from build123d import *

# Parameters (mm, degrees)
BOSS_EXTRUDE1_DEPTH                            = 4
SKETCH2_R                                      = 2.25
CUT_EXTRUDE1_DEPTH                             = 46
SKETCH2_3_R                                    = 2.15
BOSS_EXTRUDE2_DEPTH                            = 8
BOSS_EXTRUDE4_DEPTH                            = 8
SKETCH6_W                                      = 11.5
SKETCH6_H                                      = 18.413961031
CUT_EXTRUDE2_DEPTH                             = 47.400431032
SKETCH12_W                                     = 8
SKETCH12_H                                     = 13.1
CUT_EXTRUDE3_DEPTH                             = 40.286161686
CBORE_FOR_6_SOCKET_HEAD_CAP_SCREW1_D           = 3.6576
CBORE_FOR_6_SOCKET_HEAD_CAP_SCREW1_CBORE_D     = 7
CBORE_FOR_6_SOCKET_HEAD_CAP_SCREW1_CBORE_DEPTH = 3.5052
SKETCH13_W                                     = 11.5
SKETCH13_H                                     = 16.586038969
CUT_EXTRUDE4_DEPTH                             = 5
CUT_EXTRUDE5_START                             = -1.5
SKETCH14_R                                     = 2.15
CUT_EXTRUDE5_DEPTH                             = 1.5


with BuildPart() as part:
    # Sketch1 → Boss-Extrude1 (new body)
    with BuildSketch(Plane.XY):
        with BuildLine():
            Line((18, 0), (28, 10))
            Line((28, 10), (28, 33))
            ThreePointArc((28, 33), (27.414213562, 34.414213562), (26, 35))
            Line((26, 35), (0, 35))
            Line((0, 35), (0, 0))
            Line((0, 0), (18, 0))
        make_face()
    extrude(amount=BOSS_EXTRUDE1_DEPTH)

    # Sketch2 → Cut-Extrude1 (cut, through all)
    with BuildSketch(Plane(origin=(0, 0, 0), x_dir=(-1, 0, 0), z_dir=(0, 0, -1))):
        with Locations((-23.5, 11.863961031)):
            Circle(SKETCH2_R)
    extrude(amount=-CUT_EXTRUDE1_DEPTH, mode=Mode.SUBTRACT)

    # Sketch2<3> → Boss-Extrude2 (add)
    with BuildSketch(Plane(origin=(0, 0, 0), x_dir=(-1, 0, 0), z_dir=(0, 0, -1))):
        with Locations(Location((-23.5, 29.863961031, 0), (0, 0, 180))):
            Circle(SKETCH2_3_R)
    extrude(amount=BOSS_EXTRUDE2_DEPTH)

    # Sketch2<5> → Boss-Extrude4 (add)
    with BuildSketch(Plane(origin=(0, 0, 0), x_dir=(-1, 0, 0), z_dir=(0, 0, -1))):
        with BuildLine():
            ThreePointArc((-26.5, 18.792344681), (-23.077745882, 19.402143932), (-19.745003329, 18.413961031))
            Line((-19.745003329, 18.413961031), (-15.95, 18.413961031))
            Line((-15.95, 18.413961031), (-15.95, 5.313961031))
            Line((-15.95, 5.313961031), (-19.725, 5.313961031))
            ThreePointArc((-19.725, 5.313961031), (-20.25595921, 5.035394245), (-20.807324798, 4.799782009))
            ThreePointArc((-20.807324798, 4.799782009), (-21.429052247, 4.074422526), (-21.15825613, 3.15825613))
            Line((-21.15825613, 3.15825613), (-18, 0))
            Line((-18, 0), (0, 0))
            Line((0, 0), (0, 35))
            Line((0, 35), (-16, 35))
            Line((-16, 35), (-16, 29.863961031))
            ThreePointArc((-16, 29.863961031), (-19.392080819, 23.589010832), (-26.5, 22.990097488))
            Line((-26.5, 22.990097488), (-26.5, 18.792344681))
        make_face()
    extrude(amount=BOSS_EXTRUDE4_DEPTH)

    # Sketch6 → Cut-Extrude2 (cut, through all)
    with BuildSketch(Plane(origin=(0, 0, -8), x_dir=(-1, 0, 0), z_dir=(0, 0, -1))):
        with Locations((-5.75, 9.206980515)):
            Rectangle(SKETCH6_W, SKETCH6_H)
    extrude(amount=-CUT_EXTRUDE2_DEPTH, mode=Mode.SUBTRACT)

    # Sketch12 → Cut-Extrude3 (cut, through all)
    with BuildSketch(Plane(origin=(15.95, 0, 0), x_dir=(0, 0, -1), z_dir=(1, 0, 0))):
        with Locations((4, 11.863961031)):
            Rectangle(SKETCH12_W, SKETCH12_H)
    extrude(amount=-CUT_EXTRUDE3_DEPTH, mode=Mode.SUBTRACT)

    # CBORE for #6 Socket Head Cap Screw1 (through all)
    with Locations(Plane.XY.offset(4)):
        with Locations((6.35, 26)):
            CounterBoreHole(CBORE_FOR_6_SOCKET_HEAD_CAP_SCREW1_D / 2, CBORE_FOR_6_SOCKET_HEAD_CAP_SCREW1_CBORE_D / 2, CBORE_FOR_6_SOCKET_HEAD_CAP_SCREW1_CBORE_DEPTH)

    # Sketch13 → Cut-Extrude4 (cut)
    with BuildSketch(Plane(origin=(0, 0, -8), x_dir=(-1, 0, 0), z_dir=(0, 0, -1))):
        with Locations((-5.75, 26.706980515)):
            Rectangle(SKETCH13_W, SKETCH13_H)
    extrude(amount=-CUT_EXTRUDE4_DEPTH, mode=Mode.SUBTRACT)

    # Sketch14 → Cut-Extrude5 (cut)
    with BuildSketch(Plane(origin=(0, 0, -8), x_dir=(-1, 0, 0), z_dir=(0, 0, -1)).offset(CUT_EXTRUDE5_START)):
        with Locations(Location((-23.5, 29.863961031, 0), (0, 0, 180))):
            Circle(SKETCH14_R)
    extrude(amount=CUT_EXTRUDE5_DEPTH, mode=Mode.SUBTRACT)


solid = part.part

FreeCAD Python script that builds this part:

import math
import FreeCAD as App
import Part
import Sketcher
from FreeCAD import Vector
Q = App.Units.Quantity

doc = App.newDocument("Part")
body = doc.addObject("PartDesign::Body", "Body")

sketch1 = doc.addObject("Sketcher::SketchObject", "Sketch")
body.addObject(sketch1)
sketch1.AttachmentSupport = (doc.XY_Plane, [""])
sketch1.MapMode = "FlatFace"
sketch1.addGeometry([
    Part.LineSegment(Vector(18, 0, 0), Vector(28, 10, 0)),
    Part.LineSegment(Vector(28, 10, 0), Vector(28, 33, 0)),
    Part.ArcOfCircle(Part.Circle(Vector(26, 33, 0), Vector(0, 0, 1), 2), math.radians(0), math.radians(90)),
    Part.LineSegment(Vector(26, 35, 0), Vector(0, 35, 0)),
    Part.LineSegment(Vector(0, 35, 0), Vector(0, 0, 0)),
    Part.LineSegment(Vector(0, 0, 0), Vector(18, 0, 0)),
], False)
sketch1.addConstraint([
    Sketcher.Constraint("Coincident", 0, 2, 1, 1),
    Sketcher.Constraint("Tangent", 1, 2, 2, 1),
    Sketcher.Constraint("Tangent", 2, 2, 3, 1),
    Sketcher.Constraint("Coincident", 3, 2, 4, 1),
    Sketcher.Constraint("Coincident", 4, 2, 5, 1),
    Sketcher.Constraint("Coincident", 5, 2, 0, 1),
    Sketcher.Constraint("Vertical", 1),
    Sketcher.Constraint("Horizontal", 3),
    Sketcher.Constraint("Vertical", 4),
    Sketcher.Constraint("Horizontal", 5),
    Sketcher.Constraint("Coincident", 4, 2, -1, 1),
    Sketcher.Constraint("Radius", 2, Q("2 mm")),
    Sketcher.Constraint("DistanceX", 3, 2, 3, 1, Q("26 mm")),
    Sketcher.Constraint("DistanceX", 5, 1, 5, 2, Q("18 mm")),
    Sketcher.Constraint("DistanceY", 1, 1, 1, 2, Q("23 mm")),
    Sketcher.Constraint("DistanceY", 4, 2, 4, 1, Q("35 mm")),
])
pad1 = doc.addObject("PartDesign::Pad", "Pad")
body.addObject(pad1)
pad1.Profile = sketch1
pad1.Length = 4

sketch2 = doc.addObject("Sketcher::SketchObject", "Sketch001")
body.addObject(sketch2)
sketch2.AttachmentSupport = (doc.XY_Plane, [""])
sketch2.MapMode = "FlatFace"
sketch2.addGeometry(Part.Circle(Vector(23.5, 11.9, 0), Vector(0, 0, 1), 2.2), False)
sketch2.addConstraint([
    Sketcher.Constraint("Diameter", 0, Q("4.5 mm")),
    Sketcher.Constraint("DistanceX", -1, 1, 0, 3, Q("23.5 mm")),
    Sketcher.Constraint("DistanceY", -1, 1, 0, 3, Q("11.863961 mm")),
])
pocket1 = doc.addObject("PartDesign::Pocket", "Pocket")
body.addObject(pocket1)
pocket1.Profile = sketch2
pocket1.Type = "ThroughAll"
pocket1.Reversed = True

sketch3 = doc.addObject("Sketcher::SketchObject", "Sketch002")
body.addObject(sketch3)
sketch3.AttachmentSupport = (doc.XY_Plane, [""])
sketch3.MapMode = "FlatFace"
sketch3.addGeometry(Part.Circle(Vector(23.5, 29.9, 0), Vector(0, 0, 1), 2.1), False)
sketch3.addConstraint([
    Sketcher.Constraint("Diameter", 0, Q("4.3 mm")),
    Sketcher.Constraint("DistanceX", -1, 1, 0, 3, Q("23.5 mm")),
    Sketcher.Constraint("DistanceY", -1, 1, 0, 3, Q("29.863961 mm")),
])
pad2 = doc.addObject("PartDesign::Pad", "Pad001")
body.addObject(pad2)
pad2.Profile = sketch3
pad2.Length = 8
pad2.Reversed = True

sketch4 = doc.addObject("Sketcher::SketchObject", "Sketch003")
body.addObject(sketch4)
sketch4.AttachmentSupport = (doc.XY_Plane, [""])
sketch4.MapMode = "FlatFace"
sketch4.addGeometry([
    Part.ArcOfCircle(Part.Circle(Vector(23.5, 11.9, 0), Vector(0, 0, 1), 7.6), math.radians(67), math.radians(120)),
    Part.LineSegment(Vector(19.7, 18.4, 0), Vector(15.9, 18.4, 0)),
    Part.LineSegment(Vector(15.9, 18.4, 0), Vector(15.9, 5.3, 0)),
    Part.LineSegment(Vector(15.9, 5.3, 0), Vector(19.7, 5.3, 0)),
    Part.ArcOfCircle(Part.Circle(Vector(23.5, 11.9, 0), Vector(0, 0, 1), 7.6), math.radians(-119.96), math.radians(-110.87)),
    Part.ArcOfCircle(Part.Circle(Vector(20.5, 3.9, 0), Vector(0, 0, 1), 1), math.radians(-45), math.radians(69)),
    Part.LineSegment(Vector(21.2, 3.2, 0), Vector(18, 0, 0)),
    Part.LineSegment(Vector(18, 0, 0), Vector(0, 0, 0)),
    Part.LineSegment(Vector(0, 0, 0), Vector(0, 35, 0)),
    Part.LineSegment(Vector(0, 35, 0), Vector(16, 35, 0)),
    Part.LineSegment(Vector(16, 35, 0), Vector(16, 29.9, 0)),
    Part.ArcOfCircle(Part.Circle(Vector(23.5, 29.9, 0), Vector(0, 0, 1), 7.5), math.radians(-180), math.radians(-66)),
    Part.LineSegment(Vector(26.5, 23, 0), Vector(26.5, 18.8, 0)),
], False)
sketch4.addConstraint([
    Sketcher.Constraint("Coincident", 0, 2, 1, 1),
    Sketcher.Constraint("Coincident", 1, 2, 2, 1),
    Sketcher.Constraint("Coincident", 2, 2, 3, 1),
    Sketcher.Constraint("Coincident", 3, 2, 4, 1),
    Sketcher.Constraint("Tangent", 4, 2, 5, 2),
    Sketcher.Constraint("Tangent", 5, 1, 6, 1),
    Sketcher.Constraint("Coincident", 6, 2, 7, 1),
    Sketcher.Constraint("Coincident", 7, 2, 8, 1),
    Sketcher.Constraint("Coincident", 8, 2, 9, 1),
    Sketcher.Constraint("Coincident", 9, 2, 10, 1),
    Sketcher.Constraint("Tangent", 10, 2, 11, 1),
    Sketcher.Constraint("Coincident", 11, 2, 12, 1),
    Sketcher.Constraint("Coincident", 12, 2, 0, 1),
    Sketcher.Constraint("Horizontal", 1),
    Sketcher.Constraint("Vertical", 2),
    Sketcher.Constraint("Horizontal", 3),
    Sketcher.Constraint("Horizontal", 7),
    Sketcher.Constraint("Vertical", 8),
    Sketcher.Constraint("Horizontal", 9),
    Sketcher.Constraint("Vertical", 10),
    Sketcher.Constraint("Vertical", 12),
    Sketcher.Constraint("Coincident", 7, 2, -1, 1),
    Sketcher.Constraint("Coincident", 4, 3, 0, 3),
    Sketcher.Constraint("Vertical", 4, 3, 11, 3),
    Sketcher.Constraint("Radius", 5, Q("1 mm")),
    Sketcher.Constraint("Radius", 11, Q("7.5 mm")),
    Sketcher.Constraint("DistanceX", 7, 2, 7, 1, Q("18 mm")),
    Sketcher.Constraint("DistanceX", 9, 1, 9, 2, Q("16 mm")),
    Sketcher.Constraint("DistanceY", 8, 1, 8, 2, Q("35 mm")),
    Sketcher.Constraint("Angle", 6, Q("-135 deg")),
    Sketcher.Constraint("Radius", 0, Q("7.55 mm")),
    Sketcher.Constraint("DistanceY", 2, 2, 2, 1, Q("13.1 mm")),
    Sketcher.Constraint("DistanceY", 4, 3, 11, 3, Q("18 mm")),
    Sketcher.Constraint("DistanceX", 11, 3, 11, 2, Q("3 mm")),
    Sketcher.Constraint("DistanceX", 3, 1, 3, 2, Q("3.775 mm")),
    Sketcher.Constraint("DistanceX", -1, 1, 1, 2, Q("15.95 mm")),
    Sketcher.Constraint("Radius", 4, Q("7.559969 mm")),
    Sketcher.Constraint("DistanceY", 10, 2, 10, 1, Q("5.136039 mm")),
])
pad3 = doc.addObject("PartDesign::Pad", "Pad002")
body.addObject(pad3)
pad3.Profile = sketch4
pad3.Length = 8
pad3.Reversed = True

sketch5 = doc.addObject("Sketcher::SketchObject", "Sketch004")
body.addObject(sketch5)
sketch5.AttachmentSupport = (doc.XY_Plane, [""])
sketch5.MapMode = "FlatFace"
sketch5.AttachmentOffset = App.Placement(Vector(0, 0, -8), App.Rotation())
sketch5.addGeometry([
    Part.LineSegment(Vector(12, 18, 0), Vector(12, 0, 0)),
    Part.LineSegment(Vector(12, 0, 0), Vector(0, 0, 0)),
    Part.LineSegment(Vector(0, 0, 0), Vector(0, 18, 0)),
    Part.LineSegment(Vector(0, 18, 0), Vector(12, 18, 0)),
], False)
sketch5.addConstraint([
    Sketcher.Constraint("Coincident", 0, 2, 1, 1),
    Sketcher.Constraint("Coincident", 1, 2, 2, 1),
    Sketcher.Constraint("Coincident", 2, 2, 3, 1),
    Sketcher.Constraint("Coincident", 3, 2, 0, 1),
    Sketcher.Constraint("Vertical", 0),
    Sketcher.Constraint("Horizontal", 1),
    Sketcher.Constraint("Vertical", 2),
    Sketcher.Constraint("Horizontal", 3),
    Sketcher.Constraint("Coincident", 1, 2, -1, 1),
    Sketcher.Constraint("DistanceX", 1, 2, 1, 1, Q("11.5 mm")),
    Sketcher.Constraint("DistanceY", 0, 2, 0, 1, Q("18.413961 mm")),
])
pocket2 = doc.addObject("PartDesign::Pocket", "Pocket001")
body.addObject(pocket2)
pocket2.Profile = sketch5
pocket2.Type = "ThroughAll"
pocket2.Reversed = True

sketch6 = doc.addObject("Sketcher::SketchObject", "Sketch005")
body.addObject(sketch6)
sketch6.AttachmentSupport = (doc.YZ_Plane, [""])
sketch6.MapMode = "FlatFace"
sketch6.AttachmentOffset = App.Placement(Vector(0, 0, 15.95), App.Rotation())
sketch6.addGeometry([
    Part.LineSegment(Vector(18, 0, 0), Vector(5, 0, 0)),
    Part.LineSegment(Vector(5, 0, 0), Vector(5, -8, 0)),
    Part.LineSegment(Vector(5, -8, 0), Vector(18, -8, 0)),
    Part.LineSegment(Vector(18, -8, 0), Vector(18, 0, 0)),
], False)
sketch6.addConstraint([
    Sketcher.Constraint("Coincident", 0, 2, 1, 1),
    Sketcher.Constraint("Coincident", 1, 2, 2, 1),
    Sketcher.Constraint("Coincident", 2, 2, 3, 1),
    Sketcher.Constraint("Coincident", 3, 2, 0, 1),
    Sketcher.Constraint("Horizontal", 0),
    Sketcher.Constraint("Vertical", 1),
    Sketcher.Constraint("Horizontal", 2),
    Sketcher.Constraint("Vertical", 3),
    Sketcher.Constraint("PointOnObject", 0, 2, -1),
    Sketcher.Constraint("DistanceY", 1, 2, 1, 1, Q("8 mm")),
    Sketcher.Constraint("DistanceX", 0, 2, 0, 1, Q("13.1 mm")),
    Sketcher.Constraint("DistanceX", -1, 1, 0, 2, Q("5.313961 mm")),
])
pocket3 = doc.addObject("PartDesign::Pocket", "Pocket002")
body.addObject(pocket3)
pocket3.Profile = sketch6
pocket3.Type = "ThroughAll"

sketch7 = doc.addObject("Sketcher::SketchObject", "Sketch006")
body.addObject(sketch7)
sketch7.AttachmentSupport = (doc.XY_Plane, [""])
sketch7.MapMode = "FlatFace"
sketch7.AttachmentOffset = App.Placement(Vector(0, 0, 4), App.Rotation())
sketch7.addGeometry(Part.Circle(Vector(6.3, 26, 0), Vector(0, 0, 1), 1.8), False)
sketch7.addConstraint([
    Sketcher.Constraint("DistanceY", -1, 1, 0, 3, Q("26 mm")),
    Sketcher.Constraint("Diameter", 0, Q("3.6576 mm")),
    Sketcher.Constraint("DistanceX", -1, 1, 0, 3, Q("6.35 mm")),
])
doc.recompute()
hole = doc.addObject("PartDesign::Hole", "Hole")
body.addObject(hole)
hole.Profile = sketch7
hole.ThreadType = "None"
hole.Diameter = 3.6576
hole.DepthType = "ThroughAll"
hole.HoleCutType = "Counterbore"
hole.HoleCutDiameter = 7
hole.HoleCutDepth = 3.5052

sketch8 = doc.addObject("Sketcher::SketchObject", "Sketch007")
body.addObject(sketch8)
sketch8.AttachmentSupport = (doc.XY_Plane, [""])
sketch8.MapMode = "FlatFace"
sketch8.AttachmentOffset = App.Placement(Vector(0, 0, -8), App.Rotation())
sketch8.addGeometry([
    Part.LineSegment(Vector(12, 35, 0), Vector(12, 18, 0)),
    Part.LineSegment(Vector(12, 18, 0), Vector(0, 18, 0)),
    Part.LineSegment(Vector(0, 18, 0), Vector(0, 35, 0)),
    Part.LineSegment(Vector(0, 35, 0), Vector(12, 35, 0)),
], False)
sketch8.addConstraint([
    Sketcher.Constraint("Coincident", 0, 2, 1, 1),
    Sketcher.Constraint("Coincident", 1, 2, 2, 1),
    Sketcher.Constraint("Coincident", 2, 2, 3, 1),
    Sketcher.Constraint("Coincident", 3, 2, 0, 1),
    Sketcher.Constraint("Vertical", 0),
    Sketcher.Constraint("Horizontal", 1),
    Sketcher.Constraint("Vertical", 2),
    Sketcher.Constraint("Horizontal", 3),
    Sketcher.Constraint("PointOnObject", 1, 2, -2),
    Sketcher.Constraint("DistanceX", 1, 2, 1, 1, Q("11.5 mm")),
    Sketcher.Constraint("DistanceY", -1, 1, 2, 2, Q("35 mm")),
    Sketcher.Constraint("DistanceY", 0, 2, 0, 1, Q("16.586039 mm")),
])
pocket4 = doc.addObject("PartDesign::Pocket", "Pocket003")
body.addObject(pocket4)
pocket4.Profile = sketch8
pocket4.Length = 5
pocket4.Reversed = True

sketch9 = doc.addObject("Sketcher::SketchObject", "Sketch008")
body.addObject(sketch9)
sketch9.AttachmentSupport = (doc.XY_Plane, [""])
sketch9.MapMode = "FlatFace"
sketch9.AttachmentOffset = App.Placement(Vector(0, 0, -6.5), App.Rotation())
sketch9.addGeometry(Part.Circle(Vector(23.5, 29.9, 0), Vector(0, 0, 1), 2.1), False)
sketch9.addConstraint([
    Sketcher.Constraint("Diameter", 0, Q("4.3 mm")),
    Sketcher.Constraint("DistanceX", -1, 1, 0, 3, Q("23.5 mm")),
    Sketcher.Constraint("DistanceY", -1, 1, 0, 3, Q("29.863961 mm")),
])
pocket5 = doc.addObject("PartDesign::Pocket", "Pocket004")
body.addObject(pocket5)
pocket5.Profile = sketch9
pocket5.Length = 1.5

doc.recompute()
